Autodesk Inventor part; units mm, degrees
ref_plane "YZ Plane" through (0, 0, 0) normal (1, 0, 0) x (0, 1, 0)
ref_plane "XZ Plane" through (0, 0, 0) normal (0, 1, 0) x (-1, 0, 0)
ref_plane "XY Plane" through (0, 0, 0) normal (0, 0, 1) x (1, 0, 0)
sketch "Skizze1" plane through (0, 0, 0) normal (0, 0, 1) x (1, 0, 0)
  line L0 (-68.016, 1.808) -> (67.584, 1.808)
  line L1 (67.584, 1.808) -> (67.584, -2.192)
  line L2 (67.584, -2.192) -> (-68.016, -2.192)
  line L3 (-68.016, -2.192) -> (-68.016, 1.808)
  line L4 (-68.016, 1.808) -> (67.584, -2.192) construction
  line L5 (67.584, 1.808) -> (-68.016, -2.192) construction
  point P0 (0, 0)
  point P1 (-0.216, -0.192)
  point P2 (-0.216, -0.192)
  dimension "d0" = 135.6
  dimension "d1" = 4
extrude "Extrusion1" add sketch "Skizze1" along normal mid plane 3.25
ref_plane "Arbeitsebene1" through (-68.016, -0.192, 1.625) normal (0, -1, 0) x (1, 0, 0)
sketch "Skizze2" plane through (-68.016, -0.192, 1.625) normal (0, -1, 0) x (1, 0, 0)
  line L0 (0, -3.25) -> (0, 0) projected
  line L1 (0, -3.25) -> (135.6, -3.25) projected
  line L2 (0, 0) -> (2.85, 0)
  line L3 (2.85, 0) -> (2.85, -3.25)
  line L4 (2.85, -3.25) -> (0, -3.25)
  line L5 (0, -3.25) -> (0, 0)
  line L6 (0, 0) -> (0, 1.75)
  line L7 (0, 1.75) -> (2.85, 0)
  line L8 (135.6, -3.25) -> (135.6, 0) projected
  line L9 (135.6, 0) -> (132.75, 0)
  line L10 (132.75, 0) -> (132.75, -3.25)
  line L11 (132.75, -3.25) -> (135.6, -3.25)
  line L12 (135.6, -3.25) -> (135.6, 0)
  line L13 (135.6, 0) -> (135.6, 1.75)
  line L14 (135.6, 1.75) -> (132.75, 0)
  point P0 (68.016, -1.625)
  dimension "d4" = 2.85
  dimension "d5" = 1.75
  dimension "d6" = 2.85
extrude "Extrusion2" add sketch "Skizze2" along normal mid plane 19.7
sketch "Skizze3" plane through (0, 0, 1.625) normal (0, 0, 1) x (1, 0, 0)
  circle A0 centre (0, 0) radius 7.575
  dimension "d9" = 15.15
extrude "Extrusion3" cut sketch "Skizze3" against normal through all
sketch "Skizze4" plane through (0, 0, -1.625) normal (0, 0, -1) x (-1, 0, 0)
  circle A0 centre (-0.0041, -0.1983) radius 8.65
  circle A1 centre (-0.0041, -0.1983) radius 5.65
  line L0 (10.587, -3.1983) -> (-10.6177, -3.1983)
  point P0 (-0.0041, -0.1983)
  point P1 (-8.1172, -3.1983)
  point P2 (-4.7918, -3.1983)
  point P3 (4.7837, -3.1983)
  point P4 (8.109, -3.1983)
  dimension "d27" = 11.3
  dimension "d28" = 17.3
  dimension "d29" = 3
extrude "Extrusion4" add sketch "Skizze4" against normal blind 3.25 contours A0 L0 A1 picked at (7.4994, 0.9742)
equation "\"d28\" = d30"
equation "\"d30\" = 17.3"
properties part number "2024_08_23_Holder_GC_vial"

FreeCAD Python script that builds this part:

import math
import FreeCAD as App
import Part
import Sketcher
Q = App.Units.Quantity

doc = App.newDocument("Part")
body = doc.addObject("PartDesign::Body", "Body")
body.AllowCompound = True

sketch1 = body.newObject("Sketcher::SketchObject", "Sketch")
sketch1.AttachmentSupport = (doc.getObject("XY_Plane"), [""])
sketch1.MapMode = "FlatFace"
sketch1.addGeometry(Part.LineSegment(App.Vector(67.6, 1.8, 0), App.Vector(-68, 1.8, 0)), False)
sketch1.addGeometry(Part.LineSegment(App.Vector(-68, 1.8, 0), App.Vector(-68, -2.2, 0)), False)
sketch1.addGeometry(Part.LineSegment(App.Vector(-68, -2.2, 0), App.Vector(67.6, -2.2, 0)), False)
sketch1.addGeometry(Part.LineSegment(App.Vector(67.6, -2.2, 0), App.Vector(67.6, 1.8, 0)), False)
sketch1.addConstraint(Sketcher.Constraint("Coincident", 0, 2, 1, 1))
sketch1.addConstraint(Sketcher.Constraint("Coincident", 1, 2, 2, 1))
sketch1.addConstraint(Sketcher.Constraint("Coincident", 2, 2, 3, 1))
sketch1.addConstraint(Sketcher.Constraint("Coincident", 3, 2, 0, 1))
sketch1.addConstraint(Sketcher.Constraint("Horizontal", 0))
sketch1.addConstraint(Sketcher.Constraint("Vertical", 1))
sketch1.addConstraint(Sketcher.Constraint("Horizontal", 2))
sketch1.addConstraint(Sketcher.Constraint("Vertical", 3))
sketch1.addConstraint(Sketcher.Constraint("DistanceY", 1, 2, 1, 1, Q("4 mm")))
sketch1.addConstraint(Sketcher.Constraint("DistanceX", 0, 2, 0, 1, Q("135.6 mm")))
sketch1.addConstraint(Sketcher.Constraint("DistanceX", 0, 2, -1, 1, Q("68.016 mm")))
sketch1.addConstraint(Sketcher.Constraint("DistanceY", -1, 1, 0, 2, Q("1.808 mm")))
pad1 = body.newObject("PartDesign::Pad", "Pad")
pad1.Profile = sketch1
pad1.Length = 3.25
pad1.Midplane = True

sketch2 = body.newObject("Sketcher::SketchObject", "Sketch001")
sketch2.AttachmentSupport = (doc.getObject("XZ_Plane"), [""])
sketch2.MapMode = "FlatFace"
sketch2.AttachmentOffset = App.Placement(App.Vector(0, 0, 0.192), App.Rotation())
sketch2.addGeometry(Part.LineSegment(App.Vector(64.7, 1.6, 0), App.Vector(64.7, -1.6, 0)), False)
sketch2.addGeometry(Part.LineSegment(App.Vector(64.7, -1.6, 0), App.Vector(67.6, -1.6, 0)), False)
sketch2.addGeometry(Part.LineSegment(App.Vector(67.6, -1.6, 0), App.Vector(67.6, 3.4, 0)), False)
sketch2.addGeometry(Part.LineSegment(App.Vector(67.6, 3.4, 0), App.Vector(64.7, 1.6, 0)), False)
sketch2.addGeometry(Part.LineSegment(App.Vector(-68, -1.6, 0), App.Vector(-65.2, -1.6, 0)), False)
sketch2.addGeometry(Part.LineSegment(App.Vector(-65.2, -1.6, 0), App.Vector(-65.2, 1.6, 0)), False)
sketch2.addGeometry(Part.LineSegment(App.Vector(-65.2, 1.6, 0), App.Vector(-68, 3.4, 0)), False)
sketch2.addGeometry(Part.LineSegment(App.Vector(-68, 3.4, 0), App.Vector(-68, -1.6, 0)), False)
sketch2.addConstraint(Sketcher.Constraint("Coincident", 0, 2, 1, 1))
sketch2.addConstraint(Sketcher.Constraint("Coincident", 1, 2, 2, 1))
sketch2.addConstraint(Sketcher.Constraint("Coincident", 2, 2, 3, 1))
sketch2.addConstraint(Sketcher.Constraint("Coincident", 3, 2, 0, 1))
sketch2.addConstraint(Sketcher.Constraint("Coincident", 4, 2, 5, 1))
sketch2.addConstraint(Sketcher.Constraint("Coincident", 5, 2, 6, 1))
sketch2.addConstraint(Sketcher.Constraint("Coincident", 6, 2, 7, 1))
sketch2.addConstraint(Sketcher.Constraint("Coincident", 7, 2, 4, 1))
sketch2.addConstraint(Sketcher.Constraint("Vertical", 0))
sketch2.addConstraint(Sketcher.Constraint("Horizontal", 1))
sketch2.addConstraint(Sketcher.Constraint("Vertical", 2))
sketch2.addConstraint(Sketcher.Constraint("Horizontal", 4))
sketch2.addConstraint(Sketcher.Constraint("Vertical", 5))
sketch2.addConstraint(Sketcher.Constraint("Vertical", 7))
sketch2.addConstraint(Sketcher.Constraint("Horizontal", 1, 2, 4, 2))
sketch2.addConstraint(Sketcher.Constraint("Horizontal", 3, 2, 5, 2))
sketch2.addConstraint(Sketcher.Constraint("Horizontal", 2, 2, 6, 2))
sketch2.addConstraint(Sketcher.Constraint("Equal", 1, 4))
sketch2.addConstraint(Sketcher.Constraint("DistanceX", 1, 1, 1, 2, Q("2.85 mm")))
sketch2.addConstraint(Sketcher.Constraint("DistanceY", 2, 1, 2, 2, Q("5 mm")))
sketch2.addConstraint(Sketcher.Constraint("DistanceY", 3, 2, 2, 2, Q("1.75 mm")))
sketch2.addConstraint(Sketcher.Constraint("DistanceX", 4, 2, 0, 2, Q("129.9 mm")))
sketch2.addConstraint(Sketcher.Constraint("DistanceX", -1, 1, 0, 2, Q("64.734 mm")))
sketch2.addConstraint(Sketcher.Constraint("DistanceY", 0, 2, -1, 1, Q("1.625 mm")))
pad2 = body.newObject("PartDesign::Pad", "Pad001")
pad2.Profile = sketch2
pad2.Length = 19.7
pad2.Midplane = True

sketch3 = body.newObject("Sketcher::SketchObject", "Sketch002")
sketch3.AttachmentSupport = (doc.getObject("XY_Plane"), [""])
sketch3.MapMode = "FlatFace"
sketch3.AttachmentOffset = App.Placement(App.Vector(0, 0, 1.625), App.Rotation())
sketch3.addGeometry(Part.Circle(App.Vector(0, 0, 0), App.Vector(0, 0, 1), 8), False)
sketch3.addConstraint(Sketcher.Constraint("Coincident", 0, 3, -1, 1))
sketch3.addConstraint(Sketcher.Constraint("Diameter", 0, Q("15.15 mm")))
pocket1 = body.newObject("PartDesign::Pocket", "Pocket")
pocket1.Profile = sketch3
pocket1.Type = "ThroughAll"

sketch4 = body.newObject("Sketcher::SketchObject", "Sketch003")
sketch4.AttachmentSupport = (doc.getObject("XY_Plane"), [""])
sketch4.MapMode = "FlatFace"
sketch4.AttachmentOffset = App.Placement(App.Vector(0, 0, -1.625), App.Rotation())
sketch4.addGeometry(Part.ArcOfCircle(Part.Circle(App.Vector(0, -0.2, 0), App.Vector(0, 0, 1), 8.7), math.radians(-20), math.radians(200)), False)
sketch4.addGeometry(Part.LineSegment(App.Vector(8.1, -3.2, 0), App.Vector(4.8, -3.2, 0)), False)
sketch4.addGeometry(Part.ArcOfCircle(Part.Circle(App.Vector(0, -0.2, 0), App.Vector(0, 0, 1), 5.7), math.radians(-32), math.radians(212)), False)
sketch4.addGeometry(Part.LineSegment(App.Vector(-4.8, -3.2, 0), App.Vector(-8.1, -3.2, 0)), False)
sketch4.addConstraint(Sketcher.Constraint("Coincident", 0, 1, 1, 1))
sketch4.addConstraint(Sketcher.Constraint("Coincident", 1, 2, 2, 1))
sketch4.addConstraint(Sketcher.Constraint("Coincident", 2, 2, 3, 1))
sketch4.addConstraint(Sketcher.Constraint("Coincident", 3, 2, 0, 2))
sketch4.addConstraint(Sketcher.Constraint("Horizontal", 1))
sketch4.addConstraint(Sketcher.Constraint("Horizontal", 3))
sketch4.addConstraint(Sketcher.Constraint("Coincident", 2, 3, 0, 3))
sketch4.addConstraint(Sketcher.Constraint("Horizontal", 1, 2, 2, 2))
sketch4.addConstraint(Sketcher.Constraint("Radius", 0, Q("8.65 mm")))
sketch4.addConstraint(Sketcher.Constraint("Radius", 2, Q("5.65 mm")))
sketch4.addConstraint(Sketcher.Constraint("DistanceY", 0, 1, 0, 3, Q("3 mm")))
sketch4.addConstraint(Sketcher.Constraint("DistanceX", -1, 1, 0, 3, Q("0.004 mm")))
sketch4.addConstraint(Sketcher.Constraint("DistanceY", 0, 3, -1, 1, Q("0.1983 mm")))
pad3 = body.newObject("PartDesign::Pad", "Pad002")
pad3.Profile = sketch4
pad3.Length = 3.25

doc.recompute()
